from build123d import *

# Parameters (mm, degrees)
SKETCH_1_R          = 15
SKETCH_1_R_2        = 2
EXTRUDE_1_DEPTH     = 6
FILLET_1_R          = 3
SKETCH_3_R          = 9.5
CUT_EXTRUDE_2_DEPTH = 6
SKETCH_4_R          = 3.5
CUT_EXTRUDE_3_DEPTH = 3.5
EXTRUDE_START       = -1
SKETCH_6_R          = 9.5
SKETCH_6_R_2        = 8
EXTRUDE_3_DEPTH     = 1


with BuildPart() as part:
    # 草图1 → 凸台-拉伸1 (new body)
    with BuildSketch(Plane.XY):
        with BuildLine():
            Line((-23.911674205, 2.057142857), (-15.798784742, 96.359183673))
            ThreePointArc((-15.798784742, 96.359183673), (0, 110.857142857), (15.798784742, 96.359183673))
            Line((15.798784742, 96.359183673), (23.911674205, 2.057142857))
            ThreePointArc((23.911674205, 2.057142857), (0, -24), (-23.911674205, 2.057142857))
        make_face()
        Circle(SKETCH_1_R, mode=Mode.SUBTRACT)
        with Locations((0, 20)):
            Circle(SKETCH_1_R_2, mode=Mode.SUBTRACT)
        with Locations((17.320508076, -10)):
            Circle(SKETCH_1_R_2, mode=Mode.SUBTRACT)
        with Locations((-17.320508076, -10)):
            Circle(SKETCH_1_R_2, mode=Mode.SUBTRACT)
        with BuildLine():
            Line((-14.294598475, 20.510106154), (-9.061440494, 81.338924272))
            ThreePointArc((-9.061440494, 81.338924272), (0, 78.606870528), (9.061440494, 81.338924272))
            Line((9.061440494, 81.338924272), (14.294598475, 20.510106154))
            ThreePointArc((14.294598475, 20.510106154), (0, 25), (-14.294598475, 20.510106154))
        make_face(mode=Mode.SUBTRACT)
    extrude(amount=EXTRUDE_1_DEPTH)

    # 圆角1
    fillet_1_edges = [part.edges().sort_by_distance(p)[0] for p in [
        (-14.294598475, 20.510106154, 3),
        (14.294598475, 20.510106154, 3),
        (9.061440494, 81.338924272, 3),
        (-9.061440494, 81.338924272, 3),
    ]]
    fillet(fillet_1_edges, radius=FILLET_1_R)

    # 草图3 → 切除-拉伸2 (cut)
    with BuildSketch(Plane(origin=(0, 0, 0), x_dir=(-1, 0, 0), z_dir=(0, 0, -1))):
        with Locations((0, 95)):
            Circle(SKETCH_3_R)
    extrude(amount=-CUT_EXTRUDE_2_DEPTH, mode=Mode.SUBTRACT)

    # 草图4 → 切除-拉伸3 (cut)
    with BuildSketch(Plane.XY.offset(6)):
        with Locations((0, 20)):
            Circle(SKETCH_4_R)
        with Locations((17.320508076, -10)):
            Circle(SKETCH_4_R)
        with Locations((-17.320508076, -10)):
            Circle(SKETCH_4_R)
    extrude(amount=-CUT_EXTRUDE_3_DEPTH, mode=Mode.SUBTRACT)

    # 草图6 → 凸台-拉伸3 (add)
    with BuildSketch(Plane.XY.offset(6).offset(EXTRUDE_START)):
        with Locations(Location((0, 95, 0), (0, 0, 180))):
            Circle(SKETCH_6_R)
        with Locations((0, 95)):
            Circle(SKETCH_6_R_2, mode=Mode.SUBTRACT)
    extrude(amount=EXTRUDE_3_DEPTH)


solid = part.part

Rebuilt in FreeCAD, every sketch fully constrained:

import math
import FreeCAD as App
import Part
import Sketcher

V = App.Vector
Q = App.Units.Quantity


def edges_at(feature, points):
    """Names of the edges that pass closest to the given points."""
    edges = feature.Shape.Edges
    near = lambda p: min(range(len(edges)), key=lambda i: edges[i].distToShape(Part.Vertex(*p))[0])
    return sorted({f"Edge{near(p) + 1}" for p in points})

doc = App.newDocument("Part")
body = doc.addObject("PartDesign::Body", "Body")

sketch1 = body.newObject("Sketcher::SketchObject", "Sketch")
sketch1.AttachmentSupport = (doc.getObject("XY_Plane"), [""])
sketch1.MapMode = "FlatFace"
sketch1.addGeometry(Part.LineSegment(V(-15.798785, 96.359184, 0), V(-23.911674, 2.057143, 0)), False)
sketch1.addGeometry(Part.ArcOfCircle(Part.Circle(V(0, 0, 0), V(0, 0, 1), 24), math.radians(175.0829), math.radians(364.9171)), False)
sketch1.addGeometry(Part.LineSegment(V(23.911674, 2.057143, 0), V(15.798785, 96.359184, 0)), False)
sketch1.addGeometry(Part.ArcOfCircle(Part.Circle(V(0, 95, 0), V(0, 0, 1), 15.857143), math.radians(4.9171), math.radians(175.0829)), False)
sketch1.addGeometry(Part.Circle(V(17.320508, -10, 0), V(0, 0, 1), 2), False)
sketch1.addGeometry(Part.Circle(V(0, 0, 0), V(0, 0, 1), 15), False)
sketch1.addGeometry(Part.Circle(V(-17.320508, -10, 0), V(0, 0, 1), 2), False)
sketch1.addGeometry(Part.Circle(V(0, 20, 0), V(0, 0, 1), 2), False)
sketch1.addGeometry(Part.LineSegment(V(-14.294598, 20.510106, 0), V(-9.06144, 81.338924, 0)), False)
sketch1.addGeometry(Part.ArcOfCircle(Part.Circle(V(0, 95, 0), V(0, 0, 1), 16.393129), math.radians(-123.556459), math.radians(-56.443541)), False)
sketch1.addGeometry(Part.LineSegment(V(9.06144, 81.338924, 0), V(14.294598, 20.510106, 0)), False)
sketch1.addGeometry(Part.ArcOfCircle(Part.Circle(V(0, 0, 0), V(0, 0, 1), 25), math.radians(55.125281), math.radians(124.874719)), False)
sketch1.addConstraint(Sketcher.Constraint("Tangent", 0, 2, 1, 1))
sketch1.addConstraint(Sketcher.Constraint("Tangent", 1, 2, 2, 1))
sketch1.addConstraint(Sketcher.Constraint("Tangent", 2, 2, 3, 1))
sketch1.addConstraint(Sketcher.Constraint("Tangent", 3, 2, 0, 1))
sketch1.addConstraint(Sketcher.Constraint("Coincident", 8, 2, 9, 1))
sketch1.addConstraint(Sketcher.Constraint("Coincident", 9, 2, 10, 1))
sketch1.addConstraint(Sketcher.Constraint("Coincident", 10, 2, 11, 1))
sketch1.addConstraint(Sketcher.Constraint("Coincident", 11, 2, 8, 1))
sketch1.addConstraint(Sketcher.Constraint("Coincident", 1, 3, -1, 1))
sketch1.addConstraint(Sketcher.Constraint("Coincident", 5, 3, -1, 1))
sketch1.addConstraint(Sketcher.Constraint("Coincident", 11, 3, -1, 1))
sketch1.addConstraint(Sketcher.Constraint("Coincident", 9, 3, 3, 3))
sketch1.addConstraint(Sketcher.Constraint("Equal", 4, 6))
sketch1.addConstraint(Sketcher.Constraint("Equal", 6, 7))
sketch1.addConstraint(Sketcher.Constraint("Symmetric", 4, 3, 6, 3, -2))
sketch1.addConstraint(Sketcher.Constraint("Symmetric", 8, 2, 9, 2, -2))
sketch1.addConstraint(Sketcher.Constraint("PointOnObject", 7, 3, -2))
sketch1.addConstraint(Sketcher.Constraint("Parallel", 0, 8))
sketch1.addConstraint(Sketcher.Constraint("Parallel", 2, 10))
sketch1.addConstraint(Sketcher.Constraint("Diameter", 4, Q("4 mm")))
sketch1.addConstraint(Sketcher.Constraint("Diameter", 5, Q("30 mm")))
sketch1.addConstraint(Sketcher.Constraint("Radius", 1, Q("24 mm")))
sketch1.addConstraint(Sketcher.Constraint("Radius", 11, Q("25 mm")))
sketch1.addConstraint(Sketcher.Constraint("DistanceY", -1, 1, 3, 3, Q("95 mm")))
sketch1.addConstraint(Sketcher.Constraint("DistanceY", 4, 3, -1, 1, Q("10 mm")))
sketch1.addConstraint(Sketcher.Constraint("DistanceY", -1, 1, 7, 3, Q("20 mm")))
sketch1.addConstraint(Sketcher.Constraint("Radius", 9, Q("16.393129 mm")))
sketch1.addConstraint(Sketcher.Constraint("Radius", 3, Q("15.857143 mm")))
sketch1.addConstraint(Sketcher.Constraint("DistanceX", -1, 1, 10, 2, Q("14.294598 mm")))
sketch1.addConstraint(Sketcher.Constraint("DistanceX", -1, 1, 4, 3, Q("17.320508 mm")))
pad1 = body.newObject("PartDesign::Pad", "Pad")
pad1.Profile = sketch1
pad1.Length = 6
doc.recompute()

fillet = body.newObject("PartDesign::Fillet", "Fillet")
fillet.Base = (pad1, edges_at(pad1, [
    (-14.295, 20.51, 3),
    (14.295, 20.51, 3),
    (9.061, 81.339, 3),
    (-9.061, 81.339, 3),
]))
fillet.Radius = 3

sketch2 = body.newObject("Sketcher::SketchObject", "Sketch001")
sketch2.AttachmentSupport = (doc.getObject("XY_Plane"), [""])
sketch2.MapMode = "FlatFace"
sketch2.addGeometry(Part.Circle(V(0, 95, 0), V(0, 0, 1), 9.5), False)
sketch2.addConstraint(Sketcher.Constraint("PointOnObject", 0, 3, -2))
sketch2.addConstraint(Sketcher.Constraint("Diameter", 0, Q("19 mm")))
sketch2.addConstraint(Sketcher.Constraint("DistanceY", -1, 1, 0, 3, Q("95 mm")))
pocket1 = body.newObject("PartDesign::Pocket", "Pocket")
pocket1.Profile = sketch2
pocket1.Length = 6
pocket1.Reversed = True

sketch3 = body.newObject("Sketcher::SketchObject", "Sketch002")
sketch3.AttachmentSupport = (doc.getObject("XY_Plane"), [""])
sketch3.MapMode = "FlatFace"
sketch3.AttachmentOffset = App.Placement(V(0, 0, 6), App.Rotation())
sketch3.addGeometry(Part.Circle(V(0, 20, 0), V(0, 0, 1), 3.5), False)
sketch3.addGeometry(Part.Circle(V(17.320508, -10, 0), V(0, 0, 1), 3.5), False)
sketch3.addGeometry(Part.Circle(V(-17.320508, -10, 0), V(0, 0, 1), 3.5), False)
sketch3.addConstraint(Sketcher.Constraint("Equal", 0, 1))
sketch3.addConstraint(Sketcher.Constraint("Equal", 1, 2))
sketch3.addConstraint(Sketcher.Constraint("Symmetric", 1, 3, 2, 3, -2))
sketch3.addConstraint(Sketcher.Constraint("PointOnObject", 0, 3, -2))
sketch3.addConstraint(Sketcher.Constraint("Diameter", 0, Q("7 mm")))
sketch3.addConstraint(Sketcher.Constraint("DistanceY", -1, 1, 0, 3, Q("20 mm")))
sketch3.addConstraint(Sketcher.Constraint("DistanceY", 1, 3, -1, 1, Q("10 mm")))
sketch3.addConstraint(Sketcher.Constraint("DistanceX", -1, 1, 1, 3, Q("17.320508 mm")))
pocket2 = body.newObject("PartDesign::Pocket", "Pocket001")
pocket2.Profile = sketch3
pocket2.Length = 3.5

sketch4 = body.newObject("Sketcher::SketchObject", "Sketch003")
sketch4.AttachmentSupport = (doc.getObject("XY_Plane"), [""])
sketch4.MapMode = "FlatFace"
sketch4.AttachmentOffset = App.Placement(V(0, 0, 5), App.Rotation())
sketch4.addGeometry(Part.Circle(V(0, 95, 0), V(0, 0, 1), 9.5), False)
sketch4.addGeometry(Part.Circle(V(0, 95, 0), V(0, 0, 1), 8), False)
sketch4.addConstraint(Sketcher.Constraint("Coincident", 1, 3, 0, 3))
sketch4.addConstraint(Sketcher.Constraint("PointOnObject", 0, 3, -2))
sketch4.addConstraint(Sketcher.Constraint("Diameter", 0, Q("19 mm")))
sketch4.addConstraint(Sketcher.Constraint("Diameter", 1, Q("16 mm")))
sketch4.addConstraint(Sketcher.Constraint("DistanceY", -1, 1, 0, 3, Q("95 mm")))
pad2 = body.newObject("PartDesign::Pad", "Pad001")
pad2.Profile = sketch4
pad2.Length = 1

doc.recompute()
